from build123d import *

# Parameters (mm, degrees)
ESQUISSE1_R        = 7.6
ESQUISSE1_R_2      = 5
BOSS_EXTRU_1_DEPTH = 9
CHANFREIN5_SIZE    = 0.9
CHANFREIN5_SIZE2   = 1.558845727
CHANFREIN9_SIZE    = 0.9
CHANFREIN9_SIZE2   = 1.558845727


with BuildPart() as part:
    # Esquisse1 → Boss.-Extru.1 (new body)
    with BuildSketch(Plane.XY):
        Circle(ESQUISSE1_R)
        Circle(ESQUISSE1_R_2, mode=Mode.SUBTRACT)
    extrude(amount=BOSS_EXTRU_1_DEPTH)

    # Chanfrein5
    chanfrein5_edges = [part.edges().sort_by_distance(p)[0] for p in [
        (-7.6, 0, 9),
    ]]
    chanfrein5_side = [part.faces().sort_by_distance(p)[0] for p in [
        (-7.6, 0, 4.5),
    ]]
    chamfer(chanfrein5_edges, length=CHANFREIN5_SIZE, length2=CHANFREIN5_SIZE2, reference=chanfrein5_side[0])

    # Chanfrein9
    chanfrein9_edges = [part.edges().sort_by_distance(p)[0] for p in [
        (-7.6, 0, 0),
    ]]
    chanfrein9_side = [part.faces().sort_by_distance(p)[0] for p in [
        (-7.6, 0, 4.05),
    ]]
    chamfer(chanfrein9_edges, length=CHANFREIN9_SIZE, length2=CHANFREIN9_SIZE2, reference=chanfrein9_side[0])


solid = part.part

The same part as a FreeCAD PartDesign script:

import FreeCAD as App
import Part
import Sketcher
from FreeCAD import Vector


def edges_at(feature, points):
    """Names of the edges that pass closest to the given points."""
    edges = feature.Shape.Edges
    near = lambda p: min(range(len(edges)), key=lambda i: edges[i].distToShape(Part.Vertex(*p))[0])
    return sorted({f"Edge{near(p) + 1}" for p in points})

doc = App.newDocument("Part")
body = doc.addObject("PartDesign::Body", "Body")

sketch1 = body.newObject("Sketcher::SketchObject", "Sketch")
sketch1.AttachmentSupport = (doc.getObject("XY_Plane"), [""])
sketch1.MapMode = "FlatFace"
sketch1.addGeometry([
    Part.Circle(Vector(0, 0, 0), Vector(0, 0, 1), 8),
    Part.Circle(Vector(0, 0, 0), Vector(0, 0, 1), 5),
], False)
sketch1.addConstraint([
    Sketcher.Constraint("Coincident", 0, 3, -1, 1),
    Sketcher.Constraint("Coincident", 1, 3, -1, 1),
    Sketcher.Constraint("Diameter", 1, 10.0),
    Sketcher.Constraint("Diameter", 0, 15.2),
])
pad1 = body.newObject("PartDesign::Pad", "Pad")
pad1.Profile = sketch1
pad1.Length = 9
doc.recompute()

chamfer = body.newObject("PartDesign::Chamfer", "Chamfer")
chamfer.Base = (pad1, edges_at(pad1, [(-7.6, 0, 9)]))
chamfer.ChamferType = "Two distances"
chamfer.Size = 0.9
chamfer.Size2 = 1.558846
doc.recompute()

chamfer2 = body.newObject("PartDesign::Chamfer", "Chamfer001")
chamfer2.Base = (chamfer, edges_at(chamfer, [(-7.6, 0, 0)]))
chamfer2.ChamferType = "Two distances"
chamfer2.Size = 0.9
chamfer2.Size2 = 1.558846

doc.recompute()
